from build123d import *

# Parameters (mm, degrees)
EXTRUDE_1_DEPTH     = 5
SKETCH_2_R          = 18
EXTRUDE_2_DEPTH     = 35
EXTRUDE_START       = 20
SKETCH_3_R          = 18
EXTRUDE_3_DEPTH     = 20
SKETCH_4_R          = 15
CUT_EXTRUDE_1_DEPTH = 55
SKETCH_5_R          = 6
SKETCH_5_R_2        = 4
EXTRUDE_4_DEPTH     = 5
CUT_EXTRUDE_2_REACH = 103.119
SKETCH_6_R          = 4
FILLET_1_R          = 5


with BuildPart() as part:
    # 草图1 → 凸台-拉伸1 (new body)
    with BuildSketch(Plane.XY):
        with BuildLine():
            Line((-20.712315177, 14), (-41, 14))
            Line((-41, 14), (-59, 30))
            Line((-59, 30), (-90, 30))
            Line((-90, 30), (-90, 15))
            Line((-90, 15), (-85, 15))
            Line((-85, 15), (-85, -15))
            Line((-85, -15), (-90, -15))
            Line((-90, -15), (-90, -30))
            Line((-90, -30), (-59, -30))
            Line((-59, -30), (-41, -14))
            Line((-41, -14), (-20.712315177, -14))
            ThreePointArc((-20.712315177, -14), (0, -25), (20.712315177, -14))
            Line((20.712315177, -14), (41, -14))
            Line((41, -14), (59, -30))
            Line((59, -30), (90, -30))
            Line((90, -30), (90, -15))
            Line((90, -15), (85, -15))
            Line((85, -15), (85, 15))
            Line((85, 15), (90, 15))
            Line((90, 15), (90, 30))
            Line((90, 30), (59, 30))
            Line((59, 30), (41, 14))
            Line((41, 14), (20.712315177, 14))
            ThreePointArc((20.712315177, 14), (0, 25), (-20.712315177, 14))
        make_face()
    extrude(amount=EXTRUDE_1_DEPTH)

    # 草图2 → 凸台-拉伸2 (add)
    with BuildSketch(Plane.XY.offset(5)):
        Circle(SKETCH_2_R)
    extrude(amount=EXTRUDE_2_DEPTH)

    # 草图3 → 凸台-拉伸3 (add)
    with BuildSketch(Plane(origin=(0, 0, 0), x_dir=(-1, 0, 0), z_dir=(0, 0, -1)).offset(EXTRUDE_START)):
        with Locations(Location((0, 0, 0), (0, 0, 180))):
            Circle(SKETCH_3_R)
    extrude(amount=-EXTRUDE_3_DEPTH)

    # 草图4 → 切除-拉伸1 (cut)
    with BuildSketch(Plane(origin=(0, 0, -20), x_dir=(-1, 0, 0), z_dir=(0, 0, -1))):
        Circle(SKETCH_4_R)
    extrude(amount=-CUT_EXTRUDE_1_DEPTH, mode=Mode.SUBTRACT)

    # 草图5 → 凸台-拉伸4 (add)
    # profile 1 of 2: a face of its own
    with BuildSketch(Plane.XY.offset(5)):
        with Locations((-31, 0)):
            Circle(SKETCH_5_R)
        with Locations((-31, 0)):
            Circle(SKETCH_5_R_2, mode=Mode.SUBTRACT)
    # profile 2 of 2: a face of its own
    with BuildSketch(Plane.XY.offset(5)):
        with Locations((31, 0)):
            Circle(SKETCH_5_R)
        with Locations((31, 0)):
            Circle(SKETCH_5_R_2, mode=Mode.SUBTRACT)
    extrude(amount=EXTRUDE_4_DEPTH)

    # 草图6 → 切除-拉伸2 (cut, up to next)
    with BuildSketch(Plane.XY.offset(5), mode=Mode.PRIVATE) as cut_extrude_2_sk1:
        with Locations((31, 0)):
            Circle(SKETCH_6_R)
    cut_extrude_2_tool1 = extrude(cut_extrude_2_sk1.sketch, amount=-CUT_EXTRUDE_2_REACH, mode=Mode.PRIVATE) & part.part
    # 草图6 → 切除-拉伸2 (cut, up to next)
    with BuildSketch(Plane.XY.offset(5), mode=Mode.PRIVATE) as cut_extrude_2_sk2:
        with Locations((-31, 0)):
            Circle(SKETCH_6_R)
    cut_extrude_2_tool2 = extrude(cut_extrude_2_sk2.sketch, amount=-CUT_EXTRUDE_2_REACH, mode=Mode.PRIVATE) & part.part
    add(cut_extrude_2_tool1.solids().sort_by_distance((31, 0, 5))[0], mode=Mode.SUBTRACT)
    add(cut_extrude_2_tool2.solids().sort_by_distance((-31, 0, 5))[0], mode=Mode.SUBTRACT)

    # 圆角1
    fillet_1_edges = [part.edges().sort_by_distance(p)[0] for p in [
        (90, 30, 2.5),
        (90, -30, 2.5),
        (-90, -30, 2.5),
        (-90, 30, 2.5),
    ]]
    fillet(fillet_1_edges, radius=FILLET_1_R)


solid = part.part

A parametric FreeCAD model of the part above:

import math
import FreeCAD as App
import Part
import Sketcher

V = App.Vector


def edges_at(feature, points):
    """Names of the edges that pass closest to the given points."""
    edges = feature.Shape.Edges
    near = lambda p: min(range(len(edges)), key=lambda i: edges[i].distToShape(Part.Vertex(*p))[0])
    return sorted({f"Edge{near(p) + 1}" for p in points})

doc = App.newDocument("Part")
body = doc.addObject("PartDesign::Body", "Body")

sketch1 = doc.addObject("Sketcher::SketchObject", "Sketch")
body.addObject(sketch1)
sketch1.AttachmentSupport = (doc.XY_Plane, [""])
sketch1.MapMode = "FlatFace"
sketch1.addGeometry(Part.LineSegment(V(-21, 14, 0), V(-41, 14, 0)), False)
sketch1.addGeometry(Part.LineSegment(V(-41, 14, 0), V(-59, 30, 0)), False)
sketch1.addGeometry(Part.LineSegment(V(-59, 30, 0), V(-90, 30, 0)), False)
sketch1.addGeometry(Part.LineSegment(V(-90, 30, 0), V(-90, 15, 0)), False)
sketch1.addGeometry(Part.LineSegment(V(-90, 15, 0), V(-85, 15, 0)), False)
sketch1.addGeometry(Part.LineSegment(V(-85, 15, 0), V(-85, -15, 0)), False)
sketch1.addGeometry(Part.LineSegment(V(-85, -15, 0), V(-90, -15, 0)), False)
sketch1.addGeometry(Part.LineSegment(V(-90, -15, 0), V(-90, -30, 0)), False)
sketch1.addGeometry(Part.LineSegment(V(-90, -30, 0), V(-59, -30, 0)), False)
sketch1.addGeometry(Part.LineSegment(V(-59, -30, 0), V(-41, -14, 0)), False)
sketch1.addGeometry(Part.LineSegment(V(-41, -14, 0), V(-21, -14, 0)), False)
sketch1.addGeometry(Part.ArcOfCircle(Part.Circle(V(0, 0, 0), V(0, 0, 1), 25), math.radians(-146), math.radians(-34)), False)
sketch1.addGeometry(Part.LineSegment(V(21, -14, 0), V(41, -14, 0)), False)
sketch1.addGeometry(Part.LineSegment(V(41, -14, 0), V(59, -30, 0)), False)
sketch1.addGeometry(Part.LineSegment(V(59, -30, 0), V(90, -30, 0)), False)
sketch1.addGeometry(Part.LineSegment(V(90, -30, 0), V(90, -15, 0)), False)
sketch1.addGeometry(Part.LineSegment(V(90, -15, 0), V(85, -15, 0)), False)
sketch1.addGeometry(Part.LineSegment(V(85, -15, 0), V(85, 15, 0)), False)
sketch1.addGeometry(Part.LineSegment(V(85, 15, 0), V(90, 15, 0)), False)
sketch1.addGeometry(Part.LineSegment(V(90, 15, 0), V(90, 30, 0)), False)
sketch1.addGeometry(Part.LineSegment(V(90, 30, 0), V(59, 30, 0)), False)
sketch1.addGeometry(Part.LineSegment(V(59, 30, 0), V(41, 14, 0)), False)
sketch1.addGeometry(Part.LineSegment(V(41, 14, 0), V(21, 14, 0)), False)
sketch1.addGeometry(Part.ArcOfCircle(Part.Circle(V(0, 0, 0), V(0, 0, 1), 25), math.radians(34), math.radians(146)), False)
sketch1.addConstraint(Sketcher.Constraint("Coincident", 0, 2, 1, 1))
sketch1.addConstraint(Sketcher.Constraint("Coincident", 1, 2, 2, 1))
sketch1.addConstraint(Sketcher.Constraint("Coincident", 2, 2, 3, 1))
sketch1.addConstraint(Sketcher.Constraint("Coincident", 3, 2, 4, 1))
sketch1.addConstraint(Sketcher.Constraint("Coincident", 4, 2, 5, 1))
sketch1.addConstraint(Sketcher.Constraint("Coincident", 5, 2, 6, 1))
sketch1.addConstraint(Sketcher.Constraint("Coincident", 6, 2, 7, 1))
sketch1.addConstraint(Sketcher.Constraint("Coincident", 7, 2, 8, 1))
sketch1.addConstraint(Sketcher.Constraint("Coincident", 8, 2, 9, 1))
sketch1.addConstraint(Sketcher.Constraint("Coincident", 9, 2, 10, 1))
sketch1.addConstraint(Sketcher.Constraint("Coincident", 10, 2, 11, 1))
sketch1.addConstraint(Sketcher.Constraint("Coincident", 11, 2, 12, 1))
sketch1.addConstraint(Sketcher.Constraint("Coincident", 12, 2, 13, 1))
sketch1.addConstraint(Sketcher.Constraint("Coincident", 13, 2, 14, 1))
sketch1.addConstraint(Sketcher.Constraint("Coincident", 14, 2, 15, 1))
sketch1.addConstraint(Sketcher.Constraint("Coincident", 15, 2, 16, 1))
sketch1.addConstraint(Sketcher.Constraint("Coincident", 16, 2, 17, 1))
sketch1.addConstraint(Sketcher.Constraint("Coincident", 17, 2, 18, 1))
sketch1.addConstraint(Sketcher.Constraint("Coincident", 18, 2, 19, 1))
sketch1.addConstraint(Sketcher.Constraint("Coincident", 19, 2, 20, 1))
sketch1.addConstraint(Sketcher.Constraint("Coincident", 20, 2, 21, 1))
sketch1.addConstraint(Sketcher.Constraint("Coincident", 21, 2, 22, 1))
sketch1.addConstraint(Sketcher.Constraint("Coincident", 22, 2, 23, 1))
sketch1.addConstraint(Sketcher.Constraint("Coincident", 23, 2, 0, 1))
sketch1.addConstraint(Sketcher.Constraint("Horizontal", 0))
sketch1.addConstraint(Sketcher.Constraint("Horizontal", 2))
sketch1.addConstraint(Sketcher.Constraint("Vertical", 3))
sketch1.addConstraint(Sketcher.Constraint("Horizontal", 4))
sketch1.addConstraint(Sketcher.Constraint("Vertical", 5))
sketch1.addConstraint(Sketcher.Constraint("Horizontal", 6))
sketch1.addConstraint(Sketcher.Constraint("Vertical", 7))
sketch1.addConstraint(Sketcher.Constraint("Horizontal", 8))
sketch1.addConstraint(Sketcher.Constraint("Horizontal", 10))
sketch1.addConstraint(Sketcher.Constraint("Horizontal", 12))
sketch1.addConstraint(Sketcher.Constraint("Horizontal", 14))
sketch1.addConstraint(Sketcher.Constraint("Vertical", 15))
sketch1.addConstraint(Sketcher.Constraint("Horizontal", 16))
sketch1.addConstraint(Sketcher.Constraint("Vertical", 17))
sketch1.addConstraint(Sketcher.Constraint("Horizontal", 18))
sketch1.addConstraint(Sketcher.Constraint("Vertical", 19))
sketch1.addConstraint(Sketcher.Constraint("Horizontal", 20))
sketch1.addConstraint(Sketcher.Constraint("Horizontal", 22))
sketch1.addConstraint(Sketcher.Constraint("Coincident", 11, 3, -1, 1))
sketch1.addConstraint(Sketcher.Constraint("Coincident", 23, 3, -1, 1))
sketch1.addConstraint(Sketcher.Constraint("Equal", 11, 23))
sketch1.addConstraint(Sketcher.Constraint("Symmetric", 0, 2, 12, 2, -1, 1))
sketch1.addConstraint(Sketcher.Constraint("Symmetric", 1, 2, 13, 2, -1, 1))
sketch1.addConstraint(Sketcher.Constraint("Symmetric", 3, 2, 15, 2, -1, 1))
sketch1.addConstraint(Sketcher.Constraint("Symmetric", 5, 2, 17, 2, -1, 1))
sketch1.addConstraint(Sketcher.Constraint("Symmetric", 7, 2, 19, 2, -1, 1))
sketch1.addConstraint(Sketcher.Constraint("Symmetric", 9, 2, 21, 2, -1, 1))
sketch1.addConstraint(Sketcher.Constraint("Symmetric", 9, 2, 12, 2, -2))
sketch1.addConstraint(Sketcher.Constraint("Symmetric", 8, 2, 13, 2, -2))
sketch1.addConstraint(Sketcher.Constraint("Symmetric", 6, 2, 15, 2, -2))
sketch1.addConstraint(Sketcher.Constraint("Parallel", 9, 21))
sketch1.addConstraint(Sketcher.Constraint("Radius", 11, 25.0))
sketch1.addConstraint(Sketcher.Constraint("DistanceX", 2, 2, 2, 1, 31.0))
sketch1.addConstraint(Sketcher.Constraint("DistanceX", 4, 1, 4, 2, 5.0))
sketch1.addConstraint(Sketcher.Constraint("DistanceY", 3, 2, 3, 1, 15.0))
sketch1.addConstraint(Sketcher.Constraint("DistanceY", 5, 2, 5, 1, 30.0))
sketch1.addConstraint(Sketcher.Constraint("DistanceX", 0, 2, -1, 1, 41.0))
sketch1.addConstraint(Sketcher.Constraint("DistanceY", -1, 1, 0, 2, 14.0))
sketch1.addConstraint(Sketcher.Constraint("DistanceX", 1, 2, -1, 1, 59.0))
pad1 = doc.addObject("PartDesign::Pad", "Pad")
body.addObject(pad1)
pad1.Profile = sketch1
pad1.Length = 5

sketch2 = doc.addObject("Sketcher::SketchObject", "Sketch001")
body.addObject(sketch2)
sketch2.AttachmentSupport = (doc.XY_Plane, [""])
sketch2.MapMode = "FlatFace"
sketch2.AttachmentOffset = App.Placement(V(0, 0, 5), App.Rotation())
sketch2.addGeometry(Part.Circle(V(0, 0, 0), V(0, 0, 1), 18), False)
sketch2.addConstraint(Sketcher.Constraint("Coincident", 0, 3, -1, 1))
sketch2.addConstraint(Sketcher.Constraint("Diameter", 0, 36.0))
pad2 = doc.addObject("PartDesign::Pad", "Pad001")
body.addObject(pad2)
pad2.Profile = sketch2
pad2.Length = 35

sketch3 = doc.addObject("Sketcher::SketchObject", "Sketch002")
body.addObject(sketch3)
sketch3.AttachmentSupport = (doc.XY_Plane, [""])
sketch3.MapMode = "FlatFace"
sketch3.AttachmentOffset = App.Placement(V(0, 0, -20), App.Rotation())
sketch3.addGeometry(Part.Circle(V(0, 0, 0), V(0, 0, 1), 18), False)
sketch3.addConstraint(Sketcher.Constraint("Coincident", 0, 3, -1, 1))
sketch3.addConstraint(Sketcher.Constraint("Diameter", 0, 36.0))
pad3 = doc.addObject("PartDesign::Pad", "Pad002")
body.addObject(pad3)
pad3.Profile = sketch3
pad3.Length = 20

sketch4 = doc.addObject("Sketcher::SketchObject", "Sketch003")
body.addObject(sketch4)
sketch4.AttachmentSupport = (doc.XY_Plane, [""])
sketch4.MapMode = "FlatFace"
sketch4.AttachmentOffset = App.Placement(V(0, 0, -20), App.Rotation())
sketch4.addGeometry(Part.Circle(V(0, 0, 0), V(0, 0, 1), 15), False)
sketch4.addConstraint(Sketcher.Constraint("Coincident", 0, 3, -1, 1))
sketch4.addConstraint(Sketcher.Constraint("Diameter", 0, 30.0))
pocket1 = doc.addObject("PartDesign::Pocket", "Pocket")
body.addObject(pocket1)
pocket1.Profile = sketch4
pocket1.Length = 55
pocket1.Reversed = True

sketch5 = doc.addObject("Sketcher::SketchObject", "Sketch004")
body.addObject(sketch5)
sketch5.AttachmentSupport = (doc.XY_Plane, [""])
sketch5.MapMode = "FlatFace"
sketch5.AttachmentOffset = App.Placement(V(0, 0, 5), App.Rotation())
sketch5.addGeometry(Part.Circle(V(-31, 0, 0), V(0, 0, 1), 6), False)
sketch5.addGeometry(Part.Circle(V(-31, 0, 0), V(0, 0, 1), 4), False)
sketch5.addGeometry(Part.Circle(V(31, 0, 0), V(0, 0, 1), 6), False)
sketch5.addGeometry(Part.Circle(V(31, 0, 0), V(0, 0, 1), 4), False)
sketch5.addConstraint(Sketcher.Constraint("Coincident", 1, 3, 0, 3))
sketch5.addConstraint(Sketcher.Constraint("Coincident", 3, 3, 2, 3))
sketch5.addConstraint(Sketcher.Constraint("Equal", 0, 2))
sketch5.addConstraint(Sketcher.Constraint("Equal", 1, 3))
sketch5.addConstraint(Sketcher.Constraint("Symmetric", 0, 3, 2, 3, -1, 1))
sketch5.addConstraint(Sketcher.Constraint("PointOnObject", 0, 3, -1))
sketch5.addConstraint(Sketcher.Constraint("Diameter", 0, 12.0))
sketch5.addConstraint(Sketcher.Constraint("Diameter", 1, 8.0))
sketch5.addConstraint(Sketcher.Constraint("DistanceX", 0, 3, -1, 1, 31.0))
pad4 = doc.addObject("PartDesign::Pad", "Pad003")
body.addObject(pad4)
pad4.Profile = sketch5
pad4.Length = 5

sketch6 = doc.addObject("Sketcher::SketchObject", "Sketch005")
body.addObject(sketch6)
sketch6.AttachmentSupport = (doc.XY_Plane, [""])
sketch6.MapMode = "FlatFace"
sketch6.AttachmentOffset = App.Placement(V(0, 0, 5), App.Rotation())
sketch6.addGeometry(Part.Circle(V(31, 0, 0), V(0, 0, 1), 4), False)
sketch6.addConstraint(Sketcher.Constraint("PointOnObject", 0, 3, -1))
sketch6.addConstraint(Sketcher.Constraint("Diameter", 0, 8.0))
sketch6.addConstraint(Sketcher.Constraint("DistanceX", -1, 1, 0, 3, 31.0))
pocket2 = doc.addObject("PartDesign::Pocket", "Pocket001")
body.addObject(pocket2)
pocket2.Profile = sketch6
pocket2.Type = "UpToFirst"

sketch7 = doc.addObject("Sketcher::SketchObject", "Sketch006")
body.addObject(sketch7)
sketch7.AttachmentSupport = (doc.XY_Plane, [""])
sketch7.MapMode = "FlatFace"
sketch7.AttachmentOffset = App.Placement(V(0, 0, 5), App.Rotation())
sketch7.addGeometry(Part.Circle(V(-31, 0, 0), V(0, 0, 1), 4), False)
sketch7.addConstraint(Sketcher.Constraint("PointOnObject", 0, 3, -1))
sketch7.addConstraint(Sketcher.Constraint("Diameter", 0, 8.0))
sketch7.addConstraint(Sketcher.Constraint("DistanceX", 0, 3, -1, 1, 31.0))
pocket3 = doc.addObject("PartDesign::Pocket", "Pocket002")
body.addObject(pocket3)
pocket3.Profile = sketch7
pocket3.Type = "UpToFirst"
doc.recompute()

fillet = doc.addObject("PartDesign::Fillet", "Fillet")
body.addObject(fillet)
fillet.Base = (pocket3, edges_at(pocket3, [
    (90, 30, 2.5),
    (90, -30, 2.5),
    (-90, -30, 2.5),
    (-90, 30, 2.5),
]))
fillet.Radius = 5

doc.recompute()
